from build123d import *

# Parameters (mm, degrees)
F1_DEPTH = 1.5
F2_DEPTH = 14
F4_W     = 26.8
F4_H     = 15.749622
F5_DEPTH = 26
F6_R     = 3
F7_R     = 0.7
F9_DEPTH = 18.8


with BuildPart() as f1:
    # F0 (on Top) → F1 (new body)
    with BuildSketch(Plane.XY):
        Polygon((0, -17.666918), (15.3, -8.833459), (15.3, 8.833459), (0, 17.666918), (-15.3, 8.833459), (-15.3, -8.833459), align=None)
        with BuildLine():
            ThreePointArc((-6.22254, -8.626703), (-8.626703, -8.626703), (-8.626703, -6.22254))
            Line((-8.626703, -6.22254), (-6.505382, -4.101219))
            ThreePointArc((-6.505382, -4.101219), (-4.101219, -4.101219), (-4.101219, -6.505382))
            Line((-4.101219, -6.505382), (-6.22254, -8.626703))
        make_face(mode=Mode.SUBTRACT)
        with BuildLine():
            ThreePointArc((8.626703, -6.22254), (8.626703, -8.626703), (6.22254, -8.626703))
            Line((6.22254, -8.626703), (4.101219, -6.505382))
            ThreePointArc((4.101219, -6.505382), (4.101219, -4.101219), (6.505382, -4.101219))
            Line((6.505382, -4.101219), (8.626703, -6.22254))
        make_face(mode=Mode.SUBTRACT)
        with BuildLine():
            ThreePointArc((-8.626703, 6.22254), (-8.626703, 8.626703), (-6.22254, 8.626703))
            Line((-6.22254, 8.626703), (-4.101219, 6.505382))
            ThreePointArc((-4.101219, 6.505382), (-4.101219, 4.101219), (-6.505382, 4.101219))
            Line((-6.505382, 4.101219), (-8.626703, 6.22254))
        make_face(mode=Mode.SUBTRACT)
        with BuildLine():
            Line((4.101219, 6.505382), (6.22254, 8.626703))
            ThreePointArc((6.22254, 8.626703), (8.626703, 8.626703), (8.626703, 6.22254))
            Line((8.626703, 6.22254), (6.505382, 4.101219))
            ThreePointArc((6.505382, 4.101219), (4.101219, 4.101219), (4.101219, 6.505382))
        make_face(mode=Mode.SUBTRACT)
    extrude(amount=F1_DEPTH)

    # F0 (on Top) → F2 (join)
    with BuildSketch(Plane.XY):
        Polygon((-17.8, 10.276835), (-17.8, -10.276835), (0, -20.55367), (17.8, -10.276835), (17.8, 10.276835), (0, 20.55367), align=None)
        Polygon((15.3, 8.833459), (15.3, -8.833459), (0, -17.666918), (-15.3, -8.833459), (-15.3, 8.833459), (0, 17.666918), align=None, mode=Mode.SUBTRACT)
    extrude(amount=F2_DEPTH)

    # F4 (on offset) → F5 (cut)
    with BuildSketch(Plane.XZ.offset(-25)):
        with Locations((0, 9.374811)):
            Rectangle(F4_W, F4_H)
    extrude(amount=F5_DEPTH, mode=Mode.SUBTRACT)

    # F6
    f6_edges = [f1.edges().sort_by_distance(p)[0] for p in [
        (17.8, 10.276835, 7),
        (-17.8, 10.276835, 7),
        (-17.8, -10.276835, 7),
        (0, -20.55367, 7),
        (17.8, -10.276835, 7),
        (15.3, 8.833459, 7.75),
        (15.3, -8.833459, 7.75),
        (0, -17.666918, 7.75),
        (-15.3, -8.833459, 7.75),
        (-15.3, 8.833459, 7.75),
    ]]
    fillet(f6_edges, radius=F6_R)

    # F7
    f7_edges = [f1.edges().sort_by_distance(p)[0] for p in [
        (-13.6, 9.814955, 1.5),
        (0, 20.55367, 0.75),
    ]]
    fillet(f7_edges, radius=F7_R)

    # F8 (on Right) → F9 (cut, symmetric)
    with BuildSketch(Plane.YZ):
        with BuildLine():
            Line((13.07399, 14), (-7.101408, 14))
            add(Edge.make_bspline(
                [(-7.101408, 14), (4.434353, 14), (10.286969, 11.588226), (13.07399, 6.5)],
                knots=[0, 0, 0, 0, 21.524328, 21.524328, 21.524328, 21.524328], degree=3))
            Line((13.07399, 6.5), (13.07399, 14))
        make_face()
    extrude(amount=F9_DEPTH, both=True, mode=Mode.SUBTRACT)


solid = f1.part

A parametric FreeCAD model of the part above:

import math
import FreeCAD as App
import Part
import Sketcher

V = App.Vector
Q = App.Units.Quantity


def edges_at(feature, points):
    """Names of the edges that pass closest to the given points."""
    edges = feature.Shape.Edges
    near = lambda p: min(range(len(edges)), key=lambda i: edges[i].distToShape(Part.Vertex(*p))[0])
    return sorted({f"Edge{near(p) + 1}" for p in points})


def add_polygon(sketch, points):
    """Adds a closed chain of lines whose ends are joined by coincident constraints."""
    first, n = sketch.GeometryCount, len(points)
    for a, b in zip(points, points[1:] + points[:1]):
        sketch.addGeometry(Part.LineSegment(App.Vector(*a, 0), App.Vector(*b, 0)), False)
    for i in range(n):
        sketch.addConstraint(Sketcher.Constraint("Coincident", first + i, 2, first + (i + 1) % n, 1))

doc = App.newDocument("Part")
body = doc.addObject("PartDesign::Body", "Body")

# Sketch on XY plane
sketch1 = body.newObject("Sketcher::SketchObject", "Sketch")
sketch1.AttachmentSupport = (doc.getObject("XY_Plane"), [""])
sketch1.MapMode = "FlatFace"
add_polygon(sketch1, [(0, -17.7), (15.3, -8.8), (15.3, 8.8), (0, 17.7), (-15.3, 8.8), (-15.3, -8.8)])  # lines 0-5
sketch1.addGeometry(Part.LineSegment(V(-4.1, -6.5, 0), V(-6.2, -8.6, 0)), False)  # 6
sketch1.addGeometry(Part.ArcOfCircle(Part.Circle(V(-7.4, -7.4, 0), V(0, 0, 1), 1.7), math.radians(135), math.radians(315)), False)  # 7
sketch1.addGeometry(Part.LineSegment(V(-8.6, -6.2, 0), V(-6.5, -4.1, 0)), False)  # 8
sketch1.addGeometry(Part.ArcOfCircle(Part.Circle(V(-5.3, -5.3, 0), V(0, 0, 1), 1.7), math.radians(-45), math.radians(135)), False)  # 9
sketch1.addGeometry(Part.LineSegment(V(6.5, -4.1, 0), V(8.6, -6.2, 0)), False)  # 10
sketch1.addGeometry(Part.ArcOfCircle(Part.Circle(V(7.4, -7.4, 0), V(0, 0, 1), 1.7), math.radians(-135), math.radians(45)), False)  # 11
sketch1.addGeometry(Part.LineSegment(V(6.2, -8.6, 0), V(4.1, -6.5, 0)), False)  # 12
sketch1.addGeometry(Part.ArcOfCircle(Part.Circle(V(5.3, -5.3, 0), V(0, 0, 1), 1.7), math.radians(45), math.radians(225)), False)  # 13
sketch1.addGeometry(Part.LineSegment(V(-6.5, 4.1, 0), V(-8.6, 6.2, 0)), False)  # 14
sketch1.addGeometry(Part.ArcOfCircle(Part.Circle(V(-7.4, 7.4, 0), V(0, 0, 1), 1.7), math.radians(45), math.radians(225)), False)  # 15
sketch1.addGeometry(Part.LineSegment(V(-6.2, 8.6, 0), V(-4.1, 6.5, 0)), False)  # 16
sketch1.addGeometry(Part.ArcOfCircle(Part.Circle(V(-5.3, 5.3, 0), V(0, 0, 1), 1.7), math.radians(-135), math.radians(45)), False)  # 17
sketch1.addGeometry(Part.ArcOfCircle(Part.Circle(V(5.3, 5.3, 0), V(0, 0, 1), 1.7), math.radians(135), math.radians(315)), False)  # 18
sketch1.addGeometry(Part.LineSegment(V(4.1, 6.5, 0), V(6.2, 8.6, 0)), False)  # 19
sketch1.addGeometry(Part.ArcOfCircle(Part.Circle(V(7.4, 7.4, 0), V(0, 0, 1), 1.7), math.radians(-45), math.radians(135)), False)  # 20
sketch1.addGeometry(Part.LineSegment(V(8.6, 6.2, 0), V(6.5, 4.1, 0)), False)  # 21
sketch1.addConstraint([
    Sketcher.Constraint("Tangent", 6, 2, 7, 2),
    Sketcher.Constraint("Tangent", 7, 1, 8, 1),
    Sketcher.Constraint("Tangent", 8, 2, 9, 2),
    Sketcher.Constraint("Tangent", 9, 1, 6, 1),
    Sketcher.Constraint("Tangent", 10, 2, 11, 2),
    Sketcher.Constraint("Tangent", 11, 1, 12, 1),
    Sketcher.Constraint("Tangent", 12, 2, 13, 2),
    Sketcher.Constraint("Tangent", 13, 1, 10, 1),
    Sketcher.Constraint("Tangent", 14, 2, 15, 2),
    Sketcher.Constraint("Tangent", 15, 1, 16, 1),
    Sketcher.Constraint("Tangent", 16, 2, 17, 2),
    Sketcher.Constraint("Tangent", 17, 1, 14, 1),
    Sketcher.Constraint("Tangent", 18, 1, 19, 1),
    Sketcher.Constraint("Tangent", 19, 2, 20, 2),
    Sketcher.Constraint("Tangent", 20, 1, 21, 1),
    Sketcher.Constraint("Tangent", 21, 2, 18, 2),
    Sketcher.Constraint("Vertical", 1),
    Sketcher.Constraint("Vertical", 4),
    Sketcher.Constraint("Equal", 7, 9),
    Sketcher.Constraint("Equal", 9, 11),
    Sketcher.Constraint("Equal", 11, 13),
    Sketcher.Constraint("Equal", 13, 15),
    Sketcher.Constraint("Equal", 15, 17),
    Sketcher.Constraint("Equal", 17, 18),
    Sketcher.Constraint("Equal", 18, 20),
    Sketcher.Constraint("Symmetric", 11, 3, 15, 3, -1, 1),
    Sketcher.Constraint("Symmetric", 13, 3, 17, 3, -1, 1),
    Sketcher.Constraint("Symmetric", 9, 3, 18, 3, -1, 1),
    Sketcher.Constraint("Symmetric", 7, 3, 20, 3, -1, 1),
    Sketcher.Constraint("Symmetric", 0, 2, 3, 2, -1, 1),
    Sketcher.Constraint("Symmetric", 2, 2, 5, 2, -1, 1),
    Sketcher.Constraint("Symmetric", 7, 3, 11, 3, -2),
    Sketcher.Constraint("Symmetric", 9, 3, 13, 3, -2),
    Sketcher.Constraint("PointOnObject", 2, 2, -2),
    Sketcher.Constraint("Parallel", 2, 5),
    Sketcher.Constraint("Perpendicular", 8, 10),
    Sketcher.Constraint("Horizontal", 1, 2, 3, 2),
    Sketcher.Constraint("Radius", 7, 1.7),
    Sketcher.Constraint("Angle", 0, Q("30 deg")),
    Sketcher.Constraint("Distance", 6, 3.000001),
    Sketcher.Constraint("DistanceX", -1, 1, 0, 2, 15.3),
    Sketcher.Constraint("DistanceX", 9, 3, -1, 1, 5.3033),
    Sketcher.Constraint("DistanceY", 9, 3, -1, 1, 5.3033),
    Sketcher.Constraint("DistanceY", 1, 1, 1, 2, 17.666918),
])
pad1 = body.newObject("PartDesign::Pad", "Pad")
pad1.Profile = sketch1
pad1.Length = 1.5

# Sketch on XY plane
sketch2 = body.newObject("Sketcher::SketchObject", "Sketch001")
sketch2.AttachmentSupport = (doc.getObject("XY_Plane"), [""])
sketch2.MapMode = "FlatFace"
add_polygon(sketch2, [(-18, 10), (-18, -10), (0, -21), (18, -10), (18, 10), (0, 21)])  # lines 0-5
add_polygon(sketch2, [(0, 18), (15, 9), (15, -9), (0, -18), (-15, -9), (-15, 9)])  # lines 6-11
sketch2.addConstraint([
    Sketcher.Constraint("Vertical", 0),
    Sketcher.Constraint("Vertical", 3),
    Sketcher.Constraint("Vertical", 7),
    Sketcher.Constraint("Vertical", 10),
    Sketcher.Constraint("Symmetric", 0, 2, 3, 2, -1, 1),
    Sketcher.Constraint("Symmetric", 1, 2, 4, 2, -1, 1),
    Sketcher.Constraint("Symmetric", 6, 2, 9, 2, -1, 1),
    Sketcher.Constraint("Symmetric", 8, 2, 11, 2, -1, 1),
    Sketcher.Constraint("PointOnObject", 1, 2, -2),
    Sketcher.Constraint("PointOnObject", 8, 2, -2),
    Sketcher.Constraint("Parallel", 2, 5),
    Sketcher.Constraint("Parallel", 4, 6),
    Sketcher.Constraint("Parallel", 5, 8),
    Sketcher.Constraint("Parallel", 8, 11),
    Sketcher.Constraint("Horizontal", 0, 2, 2, 2),
    Sketcher.Constraint("Angle", 1, Q("-30.000001 deg")),
    Sketcher.Constraint("DistanceX", 0, 2, -1, 1, 17.8),
    Sketcher.Constraint("DistanceX", -1, 1, 6, 2, 15.3),
    Sketcher.Constraint("DistanceY", 0, 2, 0, 1, 20.55367),
    Sketcher.Constraint("DistanceY", 7, 2, 7, 1, 17.666918),
])
pad2 = body.newObject("PartDesign::Pad", "Pad001")
pad2.Profile = sketch2
pad2.Length = 14

# Sketch on XZ plane
sketch3 = body.newObject("Sketcher::SketchObject", "Sketch002")
sketch3.AttachmentSupport = (doc.getObject("XZ_Plane"), [""])
sketch3.MapMode = "FlatFace"
sketch3.AttachmentOffset = App.Placement(V(0, 0, -25), App.Rotation())
add_polygon(sketch3, [(-13, 17), (-13, 2), (13, 2), (13, 17)])  # lines 0-3
sketch3.addConstraint([
    Sketcher.Constraint("Vertical", 0),
    Sketcher.Constraint("Horizontal", 1),
    Sketcher.Constraint("Vertical", 2),
    Sketcher.Constraint("Horizontal", 3),
    Sketcher.Constraint("DistanceX", 1, 1, 1, 2, 26.8),
    Sketcher.Constraint("DistanceX", 0, 2, -1, 1, 13.4),
    Sketcher.Constraint("DistanceY", -1, 1, 0, 2, 1.5),
    Sketcher.Constraint("DistanceY", 0, 2, 0, 1, 15.749622),
])
pocket1 = body.newObject("PartDesign::Pocket", "Pocket")
pocket1.Profile = sketch3
pocket1.Length = 26
pocket1.Reversed = True
doc.recompute()

fillet = body.newObject("PartDesign::Fillet", "Fillet")
fillet.Base = (pocket1, edges_at(pocket1, [
    (17.8, 10.277, 7),
    (-17.8, 10.277, 7),
    (-17.8, -10.277, 7),
    (0, -20.554, 7),
    (17.8, -10.277, 7),
    (15.3, 8.833, 7.75),
    (15.3, -8.833, 7.75),
    (0, -17.667, 7.75),
    (-15.3, -8.833, 7.75),
    (-15.3, 8.833, 7.75),
]))
fillet.Radius = 3
doc.recompute()

fillet2 = body.newObject("PartDesign::Fillet", "Fillet001")
fillet2.Base = (fillet, edges_at(fillet, [(-13.6, 9.815, 1.5), (0, 20.554, 0.75)]))
fillet2.Radius = 0.7

# Sketch on YZ plane
sketch4 = body.newObject("Sketcher::SketchObject", "Sketch003")
sketch4.AttachmentSupport = (doc.getObject("YZ_Plane"), [""])
sketch4.MapMode = "FlatFace"
sketch4.addGeometry([
    Part.LineSegment(V(13.07399, 14, 0), V(-7.101408, 14, 0)),
    Part.BSplineCurve([V(-7.101408, 14, 0), V(4.434353, 14, 0), V(10.286969, 11.588226, 0), V(13.07399, 6.5, 0)], [4, 4], [0, 21.524328], False, 3, [1, 1, 1, 1], False),
    Part.LineSegment(V(13.07399, 6.5, 0), V(13.07399, 14, 0)),
], False)
sketch4.addConstraint([
    Sketcher.Constraint("Block", 1),
    Sketcher.Constraint("Coincident", 0, 2, 1, 1),
    Sketcher.Constraint("Coincident", 1, 2, 2, 1),
    Sketcher.Constraint("Coincident", 2, 2, 0, 1),
    Sketcher.Constraint("Horizontal", 0),
    Sketcher.Constraint("Vertical", 2),
])
pocket2 = body.newObject("PartDesign::Pocket", "Pocket001")
pocket2.Profile = sketch4
pocket2.Length = 37.6
pocket2.Midplane = True

doc.recompute()
